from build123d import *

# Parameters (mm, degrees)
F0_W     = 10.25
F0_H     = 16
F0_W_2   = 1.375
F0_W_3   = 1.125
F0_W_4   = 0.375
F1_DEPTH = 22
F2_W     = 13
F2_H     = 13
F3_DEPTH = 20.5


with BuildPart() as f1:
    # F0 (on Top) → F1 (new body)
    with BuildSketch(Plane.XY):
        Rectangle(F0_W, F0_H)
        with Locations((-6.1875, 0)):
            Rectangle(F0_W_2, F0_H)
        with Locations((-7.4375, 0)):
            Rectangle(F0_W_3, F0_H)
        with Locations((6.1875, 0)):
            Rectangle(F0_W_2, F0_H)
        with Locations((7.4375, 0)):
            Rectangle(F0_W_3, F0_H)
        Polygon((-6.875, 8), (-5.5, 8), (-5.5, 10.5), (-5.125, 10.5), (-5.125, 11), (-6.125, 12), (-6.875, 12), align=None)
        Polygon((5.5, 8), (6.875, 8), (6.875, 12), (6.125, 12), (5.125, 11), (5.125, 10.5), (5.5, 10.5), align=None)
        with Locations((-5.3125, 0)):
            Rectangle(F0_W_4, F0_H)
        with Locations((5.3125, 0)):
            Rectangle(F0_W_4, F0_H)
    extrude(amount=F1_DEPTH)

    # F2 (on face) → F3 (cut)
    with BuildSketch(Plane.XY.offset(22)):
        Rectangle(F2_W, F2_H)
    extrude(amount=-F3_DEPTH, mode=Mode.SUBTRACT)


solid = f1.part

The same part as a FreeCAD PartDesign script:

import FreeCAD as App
import Part
import Sketcher

V = App.Vector


def add_polygon(sketch, points):
    """Adds a closed chain of lines whose ends are joined by coincident constraints."""
    first, n = sketch.GeometryCount, len(points)
    for a, b in zip(points, points[1:] + points[:1]):
        sketch.addGeometry(Part.LineSegment(App.Vector(*a, 0), App.Vector(*b, 0)), False)
    for i in range(n):
        sketch.addConstraint(Sketcher.Constraint("Coincident", first + i, 2, first + (i + 1) % n, 1))

doc = App.newDocument("Part")
body = doc.addObject("PartDesign::Body", "Body")

# Sketch on XY plane
sketch1 = body.newObject("Sketcher::SketchObject", "Sketch")
sketch1.AttachmentSupport = (doc.getObject("XY_Plane"), [""])
sketch1.MapMode = "FlatFace"
add_polygon(sketch1, [(-5.5, 8), (-5.5, 10.5), (-5.12, 10.5), (-5.12, 11), (-6.12, 12), (-6.88, 12), (-6.88, 8), (-8, 8), (-8, -8), (8, -8), (8, 8), (6.88, 8), (6.88, 12), (6.12, 12), (5.12, 11), (5.12, 10.5), (5.5, 10.5), (5.5, 8)])  # lines 0-17
sketch1.addConstraint(Sketcher.Constraint("Vertical", 0))
sketch1.addConstraint(Sketcher.Constraint("Horizontal", 1))
sketch1.addConstraint(Sketcher.Constraint("Vertical", 2))
sketch1.addConstraint(Sketcher.Constraint("Horizontal", 4))
sketch1.addConstraint(Sketcher.Constraint("Vertical", 5))
sketch1.addConstraint(Sketcher.Constraint("Horizontal", 6))
sketch1.addConstraint(Sketcher.Constraint("Vertical", 7))
sketch1.addConstraint(Sketcher.Constraint("Horizontal", 8))
sketch1.addConstraint(Sketcher.Constraint("Vertical", 9))
sketch1.addConstraint(Sketcher.Constraint("Horizontal", 10))
sketch1.addConstraint(Sketcher.Constraint("Vertical", 11))
sketch1.addConstraint(Sketcher.Constraint("Horizontal", 12))
sketch1.addConstraint(Sketcher.Constraint("Vertical", 14))
sketch1.addConstraint(Sketcher.Constraint("Horizontal", 15))
sketch1.addConstraint(Sketcher.Constraint("Vertical", 16))
sketch1.addConstraint(Sketcher.Constraint("Horizontal", 17))
sketch1.addConstraint(Sketcher.Constraint("Symmetric", 6, 2, 8, 2, -1, 1))
sketch1.addConstraint(Sketcher.Constraint("Symmetric", 5, 2, 10, 2, -2))
sketch1.addConstraint(Sketcher.Constraint("Symmetric", 3, 2, 12, 2, -2))
sketch1.addConstraint(Sketcher.Constraint("Symmetric", 2, 2, 13, 2, -2))
sketch1.addConstraint(Sketcher.Constraint("Symmetric", 0, 2, 15, 2, -2))
sketch1.addConstraint(Sketcher.Constraint("Perpendicular", 3, 13))
sketch1.addConstraint(Sketcher.Constraint("Horizontal", 10, 2, 16, 2))
sketch1.addConstraint(Sketcher.Constraint("Equal", 8, 7))
sketch1.addConstraint(Sketcher.Constraint("DistanceX", 8, 1, 8, 2, 16.0))
sketch1.addConstraint(Sketcher.Constraint("DistanceX", 17, 2, 17, 1, 11.0))
sketch1.addConstraint(Sketcher.Constraint("DistanceY", 5, 2, 5, 1, 4.0))
sketch1.addConstraint(Sketcher.Constraint("DistanceY", 0, 1, 0, 2, 2.5))
sketch1.addConstraint(Sketcher.Constraint("DistanceY", 2, 1, 2, 2, 0.5))
sketch1.addConstraint(Sketcher.Constraint("DistanceX", 1, 2, 10, 2, 12.0))
sketch1.addConstraint(Sketcher.Constraint("DistanceX", 4, 2, 4, 1, 0.75))
pad1 = body.newObject("PartDesign::Pad", "Pad")
pad1.Profile = sketch1
pad1.Length = 22

# Sketch on XY plane
sketch2 = body.newObject("Sketcher::SketchObject", "Sketch001")
sketch2.AttachmentSupport = (doc.getObject("XY_Plane"), [""])
sketch2.MapMode = "FlatFace"
sketch2.AttachmentOffset = App.Placement(V(0, 0, 22), App.Rotation())
add_polygon(sketch2, [(-6, 6), (-6, -6), (6, -6), (6, 6)])  # lines 0-3
sketch2.addConstraint(Sketcher.Constraint("Vertical", 0))
sketch2.addConstraint(Sketcher.Constraint("Horizontal", 1))
sketch2.addConstraint(Sketcher.Constraint("Vertical", 2))
sketch2.addConstraint(Sketcher.Constraint("Horizontal", 3))
sketch2.addConstraint(Sketcher.Constraint("Symmetric", 0, 2, 2, 2, -1, 1))
sketch2.addConstraint(Sketcher.Constraint("Equal", 3, 0))
sketch2.addConstraint(Sketcher.Constraint("DistanceX", 1, 1, 1, 2, 13.0))
pocket1 = body.newObject("PartDesign::Pocket", "Pocket")
pocket1.Profile = sketch2
pocket1.Length = 20.5

doc.recompute()
